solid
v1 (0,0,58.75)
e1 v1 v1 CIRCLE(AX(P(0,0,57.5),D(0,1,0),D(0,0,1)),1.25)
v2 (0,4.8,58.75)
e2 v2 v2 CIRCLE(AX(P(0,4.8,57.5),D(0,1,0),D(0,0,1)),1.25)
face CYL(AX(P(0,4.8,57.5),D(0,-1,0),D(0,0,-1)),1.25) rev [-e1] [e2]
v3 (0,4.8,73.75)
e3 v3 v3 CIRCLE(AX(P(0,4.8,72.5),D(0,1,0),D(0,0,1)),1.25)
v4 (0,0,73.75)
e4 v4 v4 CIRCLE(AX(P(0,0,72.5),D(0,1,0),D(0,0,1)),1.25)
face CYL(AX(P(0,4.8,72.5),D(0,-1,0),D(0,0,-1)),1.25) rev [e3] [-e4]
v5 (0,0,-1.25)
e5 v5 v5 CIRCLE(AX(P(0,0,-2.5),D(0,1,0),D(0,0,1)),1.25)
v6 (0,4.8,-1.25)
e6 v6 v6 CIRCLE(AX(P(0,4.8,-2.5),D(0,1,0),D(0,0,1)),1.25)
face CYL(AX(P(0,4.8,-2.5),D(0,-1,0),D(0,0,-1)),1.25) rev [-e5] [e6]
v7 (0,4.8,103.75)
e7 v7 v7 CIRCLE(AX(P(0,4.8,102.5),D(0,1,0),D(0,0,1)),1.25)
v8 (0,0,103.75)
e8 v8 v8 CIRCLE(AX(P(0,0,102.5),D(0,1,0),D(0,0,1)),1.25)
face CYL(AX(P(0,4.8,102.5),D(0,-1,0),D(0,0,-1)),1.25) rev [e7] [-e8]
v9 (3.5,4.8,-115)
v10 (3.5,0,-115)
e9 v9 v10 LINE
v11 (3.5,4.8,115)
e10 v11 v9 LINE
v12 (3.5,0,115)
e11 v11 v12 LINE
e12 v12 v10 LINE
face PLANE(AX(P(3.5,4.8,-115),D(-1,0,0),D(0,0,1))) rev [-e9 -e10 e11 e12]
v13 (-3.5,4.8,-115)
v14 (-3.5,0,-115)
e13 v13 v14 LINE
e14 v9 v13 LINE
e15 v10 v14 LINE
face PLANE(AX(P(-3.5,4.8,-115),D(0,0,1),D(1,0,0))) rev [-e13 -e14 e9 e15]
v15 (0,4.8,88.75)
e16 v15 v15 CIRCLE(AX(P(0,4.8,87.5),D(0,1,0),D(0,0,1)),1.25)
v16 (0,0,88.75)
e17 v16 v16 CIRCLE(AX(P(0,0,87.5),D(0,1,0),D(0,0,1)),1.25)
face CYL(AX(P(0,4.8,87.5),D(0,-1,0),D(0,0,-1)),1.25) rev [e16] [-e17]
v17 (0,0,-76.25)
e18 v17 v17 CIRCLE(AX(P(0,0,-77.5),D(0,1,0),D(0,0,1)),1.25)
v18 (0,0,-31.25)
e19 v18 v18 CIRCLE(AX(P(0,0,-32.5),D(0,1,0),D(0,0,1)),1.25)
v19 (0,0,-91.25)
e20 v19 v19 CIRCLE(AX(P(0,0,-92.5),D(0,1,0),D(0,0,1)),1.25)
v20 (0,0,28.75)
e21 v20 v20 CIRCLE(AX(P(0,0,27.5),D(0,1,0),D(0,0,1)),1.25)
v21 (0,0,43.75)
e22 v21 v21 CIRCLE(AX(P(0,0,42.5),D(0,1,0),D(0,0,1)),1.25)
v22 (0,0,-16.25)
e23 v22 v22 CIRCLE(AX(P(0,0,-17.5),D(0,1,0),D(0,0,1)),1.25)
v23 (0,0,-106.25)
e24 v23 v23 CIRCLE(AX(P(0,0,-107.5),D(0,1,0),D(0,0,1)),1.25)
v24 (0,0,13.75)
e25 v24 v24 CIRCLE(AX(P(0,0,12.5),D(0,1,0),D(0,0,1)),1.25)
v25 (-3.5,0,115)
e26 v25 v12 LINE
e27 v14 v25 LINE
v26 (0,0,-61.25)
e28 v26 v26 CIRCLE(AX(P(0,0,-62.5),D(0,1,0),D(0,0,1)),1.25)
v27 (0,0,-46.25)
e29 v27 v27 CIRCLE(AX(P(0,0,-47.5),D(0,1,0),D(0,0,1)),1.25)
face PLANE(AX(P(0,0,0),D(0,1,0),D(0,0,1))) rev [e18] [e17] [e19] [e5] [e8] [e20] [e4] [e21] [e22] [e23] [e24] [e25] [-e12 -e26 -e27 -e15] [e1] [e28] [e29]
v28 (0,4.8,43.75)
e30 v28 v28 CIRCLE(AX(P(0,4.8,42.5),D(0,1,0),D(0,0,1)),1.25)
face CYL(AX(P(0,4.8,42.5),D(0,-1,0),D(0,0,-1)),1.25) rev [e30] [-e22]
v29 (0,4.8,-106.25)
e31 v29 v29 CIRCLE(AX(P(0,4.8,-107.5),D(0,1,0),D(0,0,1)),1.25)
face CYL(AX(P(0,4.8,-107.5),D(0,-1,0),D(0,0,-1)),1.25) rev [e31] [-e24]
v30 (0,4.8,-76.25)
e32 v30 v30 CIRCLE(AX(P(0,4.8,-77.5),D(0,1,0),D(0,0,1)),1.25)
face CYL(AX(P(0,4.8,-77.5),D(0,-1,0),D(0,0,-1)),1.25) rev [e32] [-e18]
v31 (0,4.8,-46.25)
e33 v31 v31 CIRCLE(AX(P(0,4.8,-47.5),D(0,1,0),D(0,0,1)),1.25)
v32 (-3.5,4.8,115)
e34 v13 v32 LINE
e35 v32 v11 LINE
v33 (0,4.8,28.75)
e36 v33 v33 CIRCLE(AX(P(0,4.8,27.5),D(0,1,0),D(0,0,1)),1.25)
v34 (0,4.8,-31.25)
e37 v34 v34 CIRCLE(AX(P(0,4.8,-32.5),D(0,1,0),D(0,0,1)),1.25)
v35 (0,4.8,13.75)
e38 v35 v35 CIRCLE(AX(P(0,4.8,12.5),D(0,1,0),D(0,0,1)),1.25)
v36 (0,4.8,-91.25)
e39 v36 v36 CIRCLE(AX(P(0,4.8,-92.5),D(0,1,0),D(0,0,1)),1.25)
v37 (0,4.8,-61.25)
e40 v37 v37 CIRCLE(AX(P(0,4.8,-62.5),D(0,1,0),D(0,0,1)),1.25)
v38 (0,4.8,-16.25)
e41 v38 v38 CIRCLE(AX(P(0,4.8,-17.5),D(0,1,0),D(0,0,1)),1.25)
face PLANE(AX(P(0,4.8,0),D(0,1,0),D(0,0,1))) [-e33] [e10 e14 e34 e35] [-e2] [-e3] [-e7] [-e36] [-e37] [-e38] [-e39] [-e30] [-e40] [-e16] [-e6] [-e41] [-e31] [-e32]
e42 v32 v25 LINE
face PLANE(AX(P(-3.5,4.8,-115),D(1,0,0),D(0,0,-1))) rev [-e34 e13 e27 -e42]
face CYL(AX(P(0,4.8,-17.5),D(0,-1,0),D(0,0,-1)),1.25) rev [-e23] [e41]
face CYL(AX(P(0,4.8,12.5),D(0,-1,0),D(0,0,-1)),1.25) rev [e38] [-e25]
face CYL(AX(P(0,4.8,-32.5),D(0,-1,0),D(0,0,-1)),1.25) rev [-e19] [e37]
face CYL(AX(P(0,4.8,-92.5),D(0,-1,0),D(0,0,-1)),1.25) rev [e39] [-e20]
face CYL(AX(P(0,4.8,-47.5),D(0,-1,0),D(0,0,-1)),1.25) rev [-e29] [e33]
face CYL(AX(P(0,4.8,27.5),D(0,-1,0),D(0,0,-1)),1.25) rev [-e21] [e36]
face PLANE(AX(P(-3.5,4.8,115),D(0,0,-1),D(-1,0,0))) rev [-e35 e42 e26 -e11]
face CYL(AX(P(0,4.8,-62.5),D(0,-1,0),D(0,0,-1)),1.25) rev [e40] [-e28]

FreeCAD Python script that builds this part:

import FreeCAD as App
import Part
import Sketcher
from FreeCAD import Vector
Q = App.Units.Quantity

doc = App.newDocument("Part")
params = doc.addObject("Spreadsheet::Sheet", "Params")
for row, (alias, value) in enumerate([
    ("sketch1_diameter", "2.5 mm"),
    ("sketch1_width", "7 mm"),
    ("sketch1_height", "230 mm"),
    ("pad1_length", "4.8 mm"),
], start=1):
    params.set(f"A{row}", alias)
    params.set(f"B{row}", "=" + value)
    params.setAlias(f"B{row}", alias)

body = doc.addObject("PartDesign::Body", "Body")

sketch1 = doc.addObject("Sketcher::SketchObject", "Sketch")
body.addObject(sketch1)
sketch1.AttachmentSupport = (doc.XZ_Plane, [""])
sketch1.MapMode = "FlatFace"
sketch1.addGeometry(Part.LineSegment(Vector(-3.5, -115, 0), Vector(-3.5, 115, 0)), False)
sketch1.addGeometry(Part.LineSegment(Vector(-3.5, 115, 0), Vector(3.5, 115, 0)), False)
sketch1.addGeometry(Part.LineSegment(Vector(3.5, 115, 0), Vector(3.5, -115, 0)), False)
sketch1.addGeometry(Part.LineSegment(Vector(3.5, -115, 0), Vector(-3.5, -115, 0)), False)
sketch1.addGeometry(Part.Circle(Vector(0, 102.5, 0), Vector(0, 0, 1), 1.25), False)
sketch1.addGeometry(Part.Circle(Vector(0, 87.5, 0), Vector(0, 0, 1), 1.25), False)
sketch1.addGeometry(Part.Circle(Vector(0, 72.5, 0), Vector(0, 0, 1), 1.25), False)
sketch1.addGeometry(Part.Circle(Vector(0, 57.5, 0), Vector(0, 0, 1), 1.25), False)
sketch1.addGeometry(Part.Circle(Vector(0, 42.5, 0), Vector(0, 0, 1), 1.25), False)
sketch1.addGeometry(Part.Circle(Vector(0, 27.5, 0), Vector(0, 0, 1), 1.25), False)
sketch1.addGeometry(Part.Circle(Vector(0, 12.5, 0), Vector(0, 0, 1), 1.25), False)
sketch1.addGeometry(Part.Circle(Vector(0, -2.5, 0), Vector(0, 0, 1), 1.25), False)
sketch1.addGeometry(Part.Circle(Vector(0, -17.5, 0), Vector(0, 0, 1), 1.25), False)
sketch1.addGeometry(Part.Circle(Vector(0, -32.5, 0), Vector(0, 0, 1), 1.25), False)
sketch1.addGeometry(Part.Circle(Vector(0, -47.5, 0), Vector(0, 0, 1), 1.25), False)
sketch1.addGeometry(Part.Circle(Vector(0, -62.5, 0), Vector(0, 0, 1), 1.25), False)
sketch1.addGeometry(Part.Circle(Vector(0, -77.5, 0), Vector(0, 0, 1), 1.25), False)
sketch1.addGeometry(Part.Circle(Vector(0, -92.5, 0), Vector(0, 0, 1), 1.25), False)
sketch1.addGeometry(Part.Circle(Vector(0, -107.5, 0), Vector(0, 0, 1), 1.25), False)
sketch1.addConstraint(Sketcher.Constraint("Coincident", 0, 2, 1, 1))
sketch1.addConstraint(Sketcher.Constraint("Coincident", 1, 2, 2, 1))
sketch1.addConstraint(Sketcher.Constraint("Coincident", 2, 2, 3, 1))
sketch1.addConstraint(Sketcher.Constraint("Coincident", 3, 2, 0, 1))
sketch1.addConstraint(Sketcher.Constraint("Vertical", 0))
sketch1.addConstraint(Sketcher.Constraint("Horizontal", 1))
sketch1.addConstraint(Sketcher.Constraint("Vertical", 2))
sketch1.addConstraint(Sketcher.Constraint("Horizontal", 3))
sketch1.addConstraint(Sketcher.Constraint("Equal", 4, 5))
sketch1.addConstraint(Sketcher.Constraint("Equal", 5, 6))
sketch1.addConstraint(Sketcher.Constraint("Equal", 6, 7))
sketch1.addConstraint(Sketcher.Constraint("Equal", 7, 8))
sketch1.addConstraint(Sketcher.Constraint("Equal", 8, 9))
sketch1.addConstraint(Sketcher.Constraint("Equal", 9, 10))
sketch1.addConstraint(Sketcher.Constraint("Equal", 10, 11))
sketch1.addConstraint(Sketcher.Constraint("Equal", 11, 12))
sketch1.addConstraint(Sketcher.Constraint("Equal", 12, 13))
sketch1.addConstraint(Sketcher.Constraint("Equal", 13, 14))
sketch1.addConstraint(Sketcher.Constraint("Equal", 14, 15))
sketch1.addConstraint(Sketcher.Constraint("Equal", 15, 16))
sketch1.addConstraint(Sketcher.Constraint("Equal", 16, 17))
sketch1.addConstraint(Sketcher.Constraint("Equal", 17, 18))
sketch1.addConstraint(Sketcher.Constraint("Symmetric", 0, 2, 2, 2, -1, 1))
sketch1.addConstraint(Sketcher.Constraint("PointOnObject", 4, 3, -2))
sketch1.addConstraint(Sketcher.Constraint("PointOnObject", 5, 3, -2))
sketch1.addConstraint(Sketcher.Constraint("PointOnObject", 6, 3, -2))
sketch1.addConstraint(Sketcher.Constraint("PointOnObject", 7, 3, -2))
sketch1.addConstraint(Sketcher.Constraint("PointOnObject", 8, 3, -2))
sketch1.addConstraint(Sketcher.Constraint("PointOnObject", 9, 3, -2))
sketch1.addConstraint(Sketcher.Constraint("PointOnObject", 10, 3, -2))
sketch1.addConstraint(Sketcher.Constraint("PointOnObject", 11, 3, -2))
sketch1.addConstraint(Sketcher.Constraint("PointOnObject", 12, 3, -2))
sketch1.addConstraint(Sketcher.Constraint("PointOnObject", 13, 3, -2))
sketch1.addConstraint(Sketcher.Constraint("PointOnObject", 14, 3, -2))
sketch1.addConstraint(Sketcher.Constraint("PointOnObject", 15, 3, -2))
sketch1.addConstraint(Sketcher.Constraint("PointOnObject", 16, 3, -2))
sketch1.addConstraint(Sketcher.Constraint("PointOnObject", 17, 3, -2))
sketch1.addConstraint(Sketcher.Constraint("PointOnObject", 18, 3, -2))
sketch1.addConstraint(Sketcher.Constraint("Diameter", 4, Q("2.5 mm")))
sketch1.addConstraint(Sketcher.Constraint("DistanceX", 1, 1, 1, 2, Q("7 mm")))
sketch1.addConstraint(Sketcher.Constraint("DistanceY", 0, 1, 0, 2, Q("230 mm")))
sketch1.addConstraint(Sketcher.Constraint("DistanceY", 5, 3, 4, 3, Q("15 mm")))
sketch1.addConstraint(Sketcher.Constraint("DistanceY", 6, 3, 5, 3, Q("15 mm")))
sketch1.addConstraint(Sketcher.Constraint("DistanceY", 7, 3, 6, 3, Q("15 mm")))
sketch1.addConstraint(Sketcher.Constraint("DistanceY", 8, 3, 7, 3, Q("15 mm")))
sketch1.addConstraint(Sketcher.Constraint("DistanceY", 9, 3, 8, 3, Q("15 mm")))
sketch1.addConstraint(Sketcher.Constraint("DistanceY", 10, 3, 9, 3, Q("15 mm")))
sketch1.addConstraint(Sketcher.Constraint("DistanceY", 11, 3, 10, 3, Q("15 mm")))
sketch1.addConstraint(Sketcher.Constraint("DistanceY", 12, 3, 11, 3, Q("15 mm")))
sketch1.addConstraint(Sketcher.Constraint("DistanceY", 13, 3, 12, 3, Q("15 mm")))
sketch1.addConstraint(Sketcher.Constraint("DistanceY", 14, 3, 13, 3, Q("15 mm")))
sketch1.addConstraint(Sketcher.Constraint("DistanceY", 15, 3, 14, 3, Q("15 mm")))
sketch1.addConstraint(Sketcher.Constraint("DistanceY", 16, 3, 15, 3, Q("15 mm")))
sketch1.addConstraint(Sketcher.Constraint("DistanceY", 17, 3, 16, 3, Q("15 mm")))
sketch1.addConstraint(Sketcher.Constraint("DistanceY", 18, 3, 17, 3, Q("15 mm")))
sketch1.addConstraint(Sketcher.Constraint("DistanceY", -1, 1, 4, 3, Q("102.5 mm")))
sketch1.setExpression("Constraints[38]", "Params.sketch1_diameter")
sketch1.setExpression("Constraints[39]", "Params.sketch1_width")
sketch1.setExpression("Constraints[40]", "Params.sketch1_height")
pad1 = doc.addObject("PartDesign::Pad", "Pad")
body.addObject(pad1)
pad1.Profile = sketch1
pad1.setExpression("Length", "Params.pad1_length")
pad1.Reversed = True

doc.recompute()
